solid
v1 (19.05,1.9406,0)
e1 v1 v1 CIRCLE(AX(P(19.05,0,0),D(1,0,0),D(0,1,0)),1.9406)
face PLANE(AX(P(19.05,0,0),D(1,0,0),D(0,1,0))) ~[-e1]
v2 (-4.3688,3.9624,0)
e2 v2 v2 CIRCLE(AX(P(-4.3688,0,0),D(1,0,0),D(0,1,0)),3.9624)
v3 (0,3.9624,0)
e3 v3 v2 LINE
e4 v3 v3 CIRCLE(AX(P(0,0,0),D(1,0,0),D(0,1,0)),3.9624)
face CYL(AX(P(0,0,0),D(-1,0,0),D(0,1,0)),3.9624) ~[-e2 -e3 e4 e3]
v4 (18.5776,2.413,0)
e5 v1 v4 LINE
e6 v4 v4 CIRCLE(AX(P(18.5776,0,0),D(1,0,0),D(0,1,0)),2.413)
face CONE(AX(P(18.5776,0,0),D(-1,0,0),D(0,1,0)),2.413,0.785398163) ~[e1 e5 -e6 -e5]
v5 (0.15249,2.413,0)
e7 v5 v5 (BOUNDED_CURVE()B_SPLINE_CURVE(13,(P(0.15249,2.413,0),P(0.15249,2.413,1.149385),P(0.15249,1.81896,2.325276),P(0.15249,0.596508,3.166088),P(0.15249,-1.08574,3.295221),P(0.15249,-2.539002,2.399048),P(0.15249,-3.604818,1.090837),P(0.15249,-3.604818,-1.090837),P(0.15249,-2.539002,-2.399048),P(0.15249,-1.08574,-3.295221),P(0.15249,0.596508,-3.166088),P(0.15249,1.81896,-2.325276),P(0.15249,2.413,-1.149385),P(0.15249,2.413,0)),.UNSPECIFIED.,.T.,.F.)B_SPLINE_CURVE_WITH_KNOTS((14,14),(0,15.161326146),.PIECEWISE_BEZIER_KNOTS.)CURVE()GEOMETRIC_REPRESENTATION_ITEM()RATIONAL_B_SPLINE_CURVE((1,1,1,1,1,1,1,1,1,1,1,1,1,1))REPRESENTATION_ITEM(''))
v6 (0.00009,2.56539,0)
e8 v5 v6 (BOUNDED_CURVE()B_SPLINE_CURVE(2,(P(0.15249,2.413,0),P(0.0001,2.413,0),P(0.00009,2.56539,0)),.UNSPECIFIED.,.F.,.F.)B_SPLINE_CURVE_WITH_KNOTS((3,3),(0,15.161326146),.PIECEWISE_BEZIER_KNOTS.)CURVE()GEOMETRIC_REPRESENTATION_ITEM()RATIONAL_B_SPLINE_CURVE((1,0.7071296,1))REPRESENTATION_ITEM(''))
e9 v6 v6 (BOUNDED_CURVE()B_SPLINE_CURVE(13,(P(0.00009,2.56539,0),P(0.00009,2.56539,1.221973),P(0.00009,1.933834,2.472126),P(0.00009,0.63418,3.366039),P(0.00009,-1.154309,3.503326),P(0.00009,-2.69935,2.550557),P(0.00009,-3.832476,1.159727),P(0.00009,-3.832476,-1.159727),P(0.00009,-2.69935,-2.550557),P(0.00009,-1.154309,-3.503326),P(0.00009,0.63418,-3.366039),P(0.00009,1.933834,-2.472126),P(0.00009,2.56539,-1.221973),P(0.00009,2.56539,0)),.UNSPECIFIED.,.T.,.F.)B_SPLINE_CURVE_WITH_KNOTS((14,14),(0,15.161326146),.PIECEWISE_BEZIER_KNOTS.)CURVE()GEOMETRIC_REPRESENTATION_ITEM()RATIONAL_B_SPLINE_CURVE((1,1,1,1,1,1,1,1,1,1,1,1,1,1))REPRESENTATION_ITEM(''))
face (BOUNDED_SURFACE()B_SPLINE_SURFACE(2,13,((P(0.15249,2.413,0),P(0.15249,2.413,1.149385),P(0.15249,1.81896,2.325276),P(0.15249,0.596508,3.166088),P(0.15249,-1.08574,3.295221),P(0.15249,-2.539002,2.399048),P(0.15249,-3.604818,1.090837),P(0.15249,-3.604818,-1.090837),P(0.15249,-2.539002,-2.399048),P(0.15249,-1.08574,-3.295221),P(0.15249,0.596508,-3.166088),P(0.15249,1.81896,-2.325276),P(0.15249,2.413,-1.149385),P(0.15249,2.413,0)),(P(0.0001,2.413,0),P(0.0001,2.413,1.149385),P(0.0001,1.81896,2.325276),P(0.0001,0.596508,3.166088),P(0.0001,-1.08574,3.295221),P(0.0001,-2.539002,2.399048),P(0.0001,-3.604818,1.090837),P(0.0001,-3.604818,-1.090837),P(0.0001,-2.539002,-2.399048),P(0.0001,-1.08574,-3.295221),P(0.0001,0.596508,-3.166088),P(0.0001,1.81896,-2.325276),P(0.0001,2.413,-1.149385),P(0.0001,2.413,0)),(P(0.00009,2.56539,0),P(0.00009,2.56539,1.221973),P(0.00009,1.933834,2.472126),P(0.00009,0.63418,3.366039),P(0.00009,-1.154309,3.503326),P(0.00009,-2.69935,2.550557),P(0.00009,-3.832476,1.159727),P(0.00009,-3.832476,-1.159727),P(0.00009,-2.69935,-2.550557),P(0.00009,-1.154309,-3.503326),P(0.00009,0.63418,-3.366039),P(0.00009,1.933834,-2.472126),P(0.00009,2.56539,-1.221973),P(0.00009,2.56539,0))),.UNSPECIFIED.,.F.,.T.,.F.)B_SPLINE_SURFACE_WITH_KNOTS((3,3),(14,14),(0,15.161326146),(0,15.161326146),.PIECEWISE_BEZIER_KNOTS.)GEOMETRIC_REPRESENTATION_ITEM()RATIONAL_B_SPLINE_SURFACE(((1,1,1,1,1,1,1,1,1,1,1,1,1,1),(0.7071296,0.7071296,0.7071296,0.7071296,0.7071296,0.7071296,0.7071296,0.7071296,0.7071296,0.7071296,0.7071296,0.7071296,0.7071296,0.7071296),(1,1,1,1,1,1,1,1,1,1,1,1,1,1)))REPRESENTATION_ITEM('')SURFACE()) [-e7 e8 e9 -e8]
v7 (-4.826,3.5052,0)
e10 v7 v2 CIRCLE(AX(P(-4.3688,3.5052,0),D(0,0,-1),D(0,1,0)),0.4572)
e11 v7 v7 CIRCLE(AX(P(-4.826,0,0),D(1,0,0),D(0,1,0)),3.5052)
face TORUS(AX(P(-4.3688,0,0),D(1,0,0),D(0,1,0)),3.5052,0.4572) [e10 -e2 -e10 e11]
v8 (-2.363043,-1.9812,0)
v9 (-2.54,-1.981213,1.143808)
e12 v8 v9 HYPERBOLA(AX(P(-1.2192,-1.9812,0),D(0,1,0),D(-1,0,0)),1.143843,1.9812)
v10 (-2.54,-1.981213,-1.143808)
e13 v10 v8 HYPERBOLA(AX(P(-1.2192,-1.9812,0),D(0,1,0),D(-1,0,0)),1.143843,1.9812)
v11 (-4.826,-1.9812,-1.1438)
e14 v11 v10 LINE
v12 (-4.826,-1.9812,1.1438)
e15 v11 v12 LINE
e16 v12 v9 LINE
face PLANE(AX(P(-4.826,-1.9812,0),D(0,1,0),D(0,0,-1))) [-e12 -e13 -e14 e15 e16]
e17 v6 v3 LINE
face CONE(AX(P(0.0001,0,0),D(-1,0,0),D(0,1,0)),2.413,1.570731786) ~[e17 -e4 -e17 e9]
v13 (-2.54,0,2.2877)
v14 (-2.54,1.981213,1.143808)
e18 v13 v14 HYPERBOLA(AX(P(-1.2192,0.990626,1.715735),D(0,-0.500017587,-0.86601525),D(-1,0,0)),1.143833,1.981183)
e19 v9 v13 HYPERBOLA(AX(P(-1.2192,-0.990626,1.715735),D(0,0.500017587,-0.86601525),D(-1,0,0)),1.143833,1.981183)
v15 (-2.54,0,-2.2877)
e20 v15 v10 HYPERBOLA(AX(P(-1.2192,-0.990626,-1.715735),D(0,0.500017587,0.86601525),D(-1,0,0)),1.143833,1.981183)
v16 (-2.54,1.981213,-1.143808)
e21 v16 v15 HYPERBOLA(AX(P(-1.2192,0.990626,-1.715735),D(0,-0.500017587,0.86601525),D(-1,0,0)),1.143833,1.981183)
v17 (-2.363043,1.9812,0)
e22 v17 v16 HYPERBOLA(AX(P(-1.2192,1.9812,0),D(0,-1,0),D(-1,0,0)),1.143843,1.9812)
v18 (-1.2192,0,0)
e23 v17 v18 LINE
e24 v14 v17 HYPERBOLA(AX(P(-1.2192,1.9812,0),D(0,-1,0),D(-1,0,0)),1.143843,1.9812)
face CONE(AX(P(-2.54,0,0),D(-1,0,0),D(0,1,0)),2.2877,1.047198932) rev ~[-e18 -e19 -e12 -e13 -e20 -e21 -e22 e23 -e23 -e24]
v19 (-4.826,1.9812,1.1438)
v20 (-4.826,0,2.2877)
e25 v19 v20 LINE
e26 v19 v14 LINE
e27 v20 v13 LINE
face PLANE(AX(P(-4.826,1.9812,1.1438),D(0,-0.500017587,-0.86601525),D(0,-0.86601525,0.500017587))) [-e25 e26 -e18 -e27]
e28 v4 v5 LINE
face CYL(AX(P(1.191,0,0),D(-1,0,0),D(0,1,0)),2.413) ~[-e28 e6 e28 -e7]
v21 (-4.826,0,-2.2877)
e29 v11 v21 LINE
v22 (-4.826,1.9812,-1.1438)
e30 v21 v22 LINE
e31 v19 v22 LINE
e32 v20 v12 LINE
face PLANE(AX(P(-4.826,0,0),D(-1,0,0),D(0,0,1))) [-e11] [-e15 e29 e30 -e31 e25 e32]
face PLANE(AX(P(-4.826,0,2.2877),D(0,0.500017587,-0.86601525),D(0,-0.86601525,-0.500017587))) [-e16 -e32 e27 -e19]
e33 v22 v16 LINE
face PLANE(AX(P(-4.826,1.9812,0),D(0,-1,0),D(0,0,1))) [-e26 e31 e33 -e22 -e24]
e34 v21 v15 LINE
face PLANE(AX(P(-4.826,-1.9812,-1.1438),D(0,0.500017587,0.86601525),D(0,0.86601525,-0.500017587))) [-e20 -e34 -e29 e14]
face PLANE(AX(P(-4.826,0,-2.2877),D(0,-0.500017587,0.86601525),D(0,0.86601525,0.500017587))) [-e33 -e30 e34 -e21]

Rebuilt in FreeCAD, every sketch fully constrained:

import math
import FreeCAD as App
import Part
import Sketcher
from FreeCAD import Vector
Q = App.Units.Quantity


def edges_at(feature, points):
    """Names of the edges that pass closest to the given points."""
    edges = feature.Shape.Edges
    near = lambda p: min(range(len(edges)), key=lambda i: edges[i].distToShape(Part.Vertex(*p))[0])
    return sorted({f"Edge{near(p) + 1}" for p in points})

doc = App.newDocument("Part")
body = doc.addObject("PartDesign::Body", "Body")

# Sketch on XY plane
sketch1 = body.newObject("Sketcher::SketchObject", "Sketch")
sketch1.AttachmentSupport = (doc.getObject("XY_Plane"), [""])
sketch1.MapMode = "FlatFace"
sketch1.addGeometry(Part.LineSegment(Vector(-2.54, 2.2877, 0), Vector(-1.2192, 0, 0)), False)
sketch1.addGeometry(Part.LineSegment(Vector(-1.2192, 0, 0), Vector(19.05, 0, 0)), False)
sketch1.addGeometry(Part.LineSegment(Vector(19.05, 0, 0), Vector(19.05, 2.413, 0)), False)
sketch1.addGeometry(Part.LineSegment(Vector(19.05, 2.413, 0), Vector(0.0001, 2.413, 0)), False)
sketch1.addGeometry(Part.LineSegment(Vector(0.0001, 2.413, 0), Vector(0, 3.9624, 0)), False)
sketch1.addGeometry(Part.LineSegment(Vector(0, 3.9624, 0), Vector(-4.826, 3.9624, 0)), False)
sketch1.addGeometry(Part.LineSegment(Vector(-4.826, 3.9624, 0), Vector(-4.826, 2.2877, 0)), False)
sketch1.addGeometry(Part.LineSegment(Vector(-4.826, 2.2877, 0), Vector(-2.54, 2.2877, 0)), False)
sketch1.addConstraint(Sketcher.Constraint("Coincident", 0, 2, 1, 1))
sketch1.addConstraint(Sketcher.Constraint("Coincident", 1, 2, 2, 1))
sketch1.addConstraint(Sketcher.Constraint("Coincident", 2, 2, 3, 1))
sketch1.addConstraint(Sketcher.Constraint("Coincident", 3, 2, 4, 1))
sketch1.addConstraint(Sketcher.Constraint("Coincident", 4, 2, 5, 1))
sketch1.addConstraint(Sketcher.Constraint("Coincident", 5, 2, 6, 1))
sketch1.addConstraint(Sketcher.Constraint("Coincident", 6, 2, 7, 1))
sketch1.addConstraint(Sketcher.Constraint("Coincident", 7, 2, 0, 1))
sketch1.addConstraint(Sketcher.Constraint("Horizontal", 1))
sketch1.addConstraint(Sketcher.Constraint("Vertical", 2))
sketch1.addConstraint(Sketcher.Constraint("Horizontal", 3))
sketch1.addConstraint(Sketcher.Constraint("Vertical", 4))
sketch1.addConstraint(Sketcher.Constraint("Horizontal", 5))
sketch1.addConstraint(Sketcher.Constraint("Vertical", 6))
sketch1.addConstraint(Sketcher.Constraint("Horizontal", 7))
sketch1.addConstraint(Sketcher.Constraint("PointOnObject", 0, 2, -1))
sketch1.addConstraint(Sketcher.Constraint("PointOnObject", 3, 2, -2))
sketch1.addConstraint(Sketcher.Constraint("Angle", 0, Q("-60 deg")))
sketch1.addConstraint(Sketcher.Constraint("DistanceX", 3, 2, 3, 1, Q("0.75 in")))
sketch1.addConstraint(Sketcher.Constraint("DistanceX", 5, 2, 5, 1, Q("0.19 in")))
sketch1.addConstraint(Sketcher.Constraint("DistanceX", 7, 1, 7, 2, Q("0.09 in")))
sketch1.addConstraint(Sketcher.Constraint("DistanceX", 1, 1, 1, 2, Q("0.798 in")))
sketch1.addConstraint(Sketcher.Constraint("DistanceY", 2, 1, 2, 2, Q("0.095 in")))
sketch1.addConstraint(Sketcher.Constraint("DistanceY", 4, 1, 4, 2, Q("0.061 in")))
revolution = body.newObject("PartDesign::Revolution", "Revolution")
revolution.Profile = sketch1
revolution.ReferenceAxis = (sketch1, ["H_Axis"])
revolution.Angle = 360

# Sketch on YZ plane
sketch2 = body.newObject("Sketcher::SketchObject", "Sketch001")
sketch2.AttachmentSupport = (doc.getObject("YZ_Plane"), [""])
sketch2.MapMode = "FlatFace"
sketch2.AttachmentOffset = App.Placement(Vector(0, 0, -0.19 * 25.4), App.Rotation())
sketch2.addGeometry(Part.LineSegment(Vector(1.9812, 1.1438, 0), Vector(0, 2.2877, 0)), False)
sketch2.addGeometry(Part.ArcOfCircle(Part.Circle(Vector(0, 0, 0), Vector(0, 0, 1), 2.2877), math.radians(29.998995), math.radians(90)), False)
sketch2.addGeometry(Part.ArcOfCircle(Part.Circle(Vector(0, 0, 0), Vector(0, 0, 1), 2.2877), math.radians(90), math.radians(150.001005)), False)
sketch2.addGeometry(Part.LineSegment(Vector(0, 2.2877, 0), Vector(-1.9812, 1.1438, 0)), False)
sketch2.addGeometry(Part.ArcOfCircle(Part.Circle(Vector(0, 0, 0), Vector(0, 0, 1), 2.2877), math.radians(-29.998995), math.radians(29.998995)), False)
sketch2.addGeometry(Part.LineSegment(Vector(1.9812, 1.1438, 0), Vector(1.9812, -1.1438, 0)), False)
sketch2.addGeometry(Part.LineSegment(Vector(-1.9812, 1.1438, 0), Vector(-1.9812, -1.1438, 0)), False)
sketch2.addGeometry(Part.ArcOfCircle(Part.Circle(Vector(0, 0, 0), Vector(0, 0, 1), 2.2877), math.radians(150.001005), math.radians(209.998995)), False)
sketch2.addGeometry(Part.LineSegment(Vector(-1.9812, -1.1438, 0), Vector(0, -2.2877, 0)), False)
sketch2.addGeometry(Part.ArcOfCircle(Part.Circle(Vector(0, 0, 0), Vector(0, 0, 1), 2.2877), math.radians(-150.001005), math.radians(-90)), False)
sketch2.addGeometry(Part.ArcOfCircle(Part.Circle(Vector(0, 0, 0), Vector(0, 0, 1), 2.2877), math.radians(-90), math.radians(-29.998995)), False)
sketch2.addGeometry(Part.LineSegment(Vector(0, -2.2877, 0), Vector(1.9812, -1.1438, 0)), False)
sketch2.addConstraint(Sketcher.Constraint("Coincident", 0, 1, 1, 1))
sketch2.addConstraint(Sketcher.Constraint("Coincident", 1, 2, 0, 2))
sketch2.addConstraint(Sketcher.Constraint("Coincident", 2, 1, 3, 1))
sketch2.addConstraint(Sketcher.Constraint("Coincident", 3, 2, 2, 2))
sketch2.addConstraint(Sketcher.Constraint("Coincident", 4, 1, 5, 2))
sketch2.addConstraint(Sketcher.Constraint("Coincident", 5, 1, 4, 2))
sketch2.addConstraint(Sketcher.Constraint("Coincident", 6, 1, 7, 1))
sketch2.addConstraint(Sketcher.Constraint("Coincident", 7, 2, 6, 2))
sketch2.addConstraint(Sketcher.Constraint("Coincident", 8, 1, 9, 1))
sketch2.addConstraint(Sketcher.Constraint("Coincident", 9, 2, 8, 2))
sketch2.addConstraint(Sketcher.Constraint("Coincident", 10, 1, 11, 1))
sketch2.addConstraint(Sketcher.Constraint("Coincident", 11, 2, 10, 2))
sketch2.addConstraint(Sketcher.Constraint("Vertical", 5))
sketch2.addConstraint(Sketcher.Constraint("Vertical", 6))
sketch2.addConstraint(Sketcher.Constraint("Coincident", 1, 3, -1, 1))
sketch2.addConstraint(Sketcher.Constraint("Coincident", 2, 3, -1, 1))
sketch2.addConstraint(Sketcher.Constraint("Coincident", 4, 3, -1, 1))
sketch2.addConstraint(Sketcher.Constraint("Coincident", 7, 3, -1, 1))
sketch2.addConstraint(Sketcher.Constraint("Coincident", 9, 3, -1, 1))
sketch2.addConstraint(Sketcher.Constraint("Coincident", 10, 3, -1, 1))
sketch2.addConstraint(Sketcher.Constraint("Coincident", 2, 1, 1, 2))
sketch2.addConstraint(Sketcher.Constraint("Coincident", 5, 1, 0, 1))
sketch2.addConstraint(Sketcher.Constraint("Coincident", 6, 1, 3, 2))
sketch2.addConstraint(Sketcher.Constraint("Coincident", 8, 1, 7, 2))
sketch2.addConstraint(Sketcher.Constraint("Coincident", 10, 1, 9, 2))
sketch2.addConstraint(Sketcher.Constraint("PointOnObject", 1, 2, -2))
sketch2.addConstraint(Sketcher.Constraint("PointOnObject", 9, 2, -2))
sketch2.addConstraint(Sketcher.Constraint("Parallel", 0, 8))
sketch2.addConstraint(Sketcher.Constraint("Parallel", 3, 11))
sketch2.addConstraint(Sketcher.Constraint("Angle", 0, Q("149.9988 deg")))
sketch2.addConstraint(Sketcher.Constraint("Radius", 1, 2.2877))
pad1 = body.newObject("PartDesign::Pad", "Pad")
pad1.Profile = sketch2
pad1.Length = 2.463
doc.recompute()

fillet = body.newObject("PartDesign::Fillet", "Fillet")
fillet.Base = (pad1, edges_at(pad1, [(-4.826, -3.962, 0)]))
fillet.Radius = Q("0.018 in")
doc.recompute()

chamfer = body.newObject("PartDesign::Chamfer", "Chamfer")
chamfer.Base = (fillet, edges_at(fillet, [(19.05, -2.413, 0)]))
chamfer.ChamferType = "Two distances"
chamfer.Size = Q("0.0185984 in")
chamfer.Size2 = Q("0.0185984 in")
doc.recompute()

fillet2 = body.newObject("PartDesign::Fillet", "Fillet001")
fillet2.Base = (chamfer, edges_at(chamfer, [(0, -2.413, 0)]))
fillet2.Radius = Q("0.006 in")

doc.recompute()
